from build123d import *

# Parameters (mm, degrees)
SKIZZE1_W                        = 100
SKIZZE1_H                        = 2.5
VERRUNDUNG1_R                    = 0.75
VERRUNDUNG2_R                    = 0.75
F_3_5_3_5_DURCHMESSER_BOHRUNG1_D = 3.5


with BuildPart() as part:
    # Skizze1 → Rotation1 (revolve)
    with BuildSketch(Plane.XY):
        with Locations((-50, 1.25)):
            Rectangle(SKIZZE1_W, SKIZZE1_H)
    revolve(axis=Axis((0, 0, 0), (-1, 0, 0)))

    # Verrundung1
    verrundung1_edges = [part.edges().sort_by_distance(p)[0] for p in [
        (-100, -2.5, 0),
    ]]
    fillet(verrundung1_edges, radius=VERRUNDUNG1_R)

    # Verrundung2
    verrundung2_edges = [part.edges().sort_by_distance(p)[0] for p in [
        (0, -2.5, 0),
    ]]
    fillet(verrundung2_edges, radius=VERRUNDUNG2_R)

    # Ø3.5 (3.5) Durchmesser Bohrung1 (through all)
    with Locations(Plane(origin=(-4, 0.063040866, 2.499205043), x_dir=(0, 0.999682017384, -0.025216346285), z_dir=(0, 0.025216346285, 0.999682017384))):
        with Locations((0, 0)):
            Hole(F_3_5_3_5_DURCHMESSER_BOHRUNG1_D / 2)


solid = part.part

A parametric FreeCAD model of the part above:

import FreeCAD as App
import Part
import Sketcher


def edges_at(feature, points):
    """Names of the edges that pass closest to the given points."""
    edges = feature.Shape.Edges
    near = lambda p: min(range(len(edges)), key=lambda i: edges[i].distToShape(Part.Vertex(*p))[0])
    return sorted({f"Edge{near(p) + 1}" for p in points})

doc = App.newDocument("Part")
body = doc.addObject("PartDesign::Body", "Body")

# Sketch on XY plane
sketch1 = body.newObject("Sketcher::SketchObject", "Sketch")
sketch1.AttachmentSupport = (doc.getObject("XY_Plane"), [""])
sketch1.MapMode = "FlatFace"
sketch1.addGeometry([
    Part.LineSegment(App.Vector(-100, 2.5, 0), App.Vector(-100, 0, 0)),
    Part.LineSegment(App.Vector(-100, 0, 0), App.Vector(0, 0, 0)),
    Part.LineSegment(App.Vector(0, 0, 0), App.Vector(0, 2.5, 0)),
    Part.LineSegment(App.Vector(0, 2.5, 0), App.Vector(-100, 2.5, 0)),
], False)
sketch1.addConstraint([
    Sketcher.Constraint("Coincident", 0, 2, 1, 1),
    Sketcher.Constraint("Coincident", 1, 2, 2, 1),
    Sketcher.Constraint("Coincident", 2, 2, 3, 1),
    Sketcher.Constraint("Coincident", 3, 2, 0, 1),
    Sketcher.Constraint("Vertical", 0),
    Sketcher.Constraint("Horizontal", 1),
    Sketcher.Constraint("Vertical", 2),
    Sketcher.Constraint("Horizontal", 3),
    Sketcher.Constraint("Coincident", 1, 2, -1, 1),
    Sketcher.Constraint("DistanceX", 1, 1, 1, 2, 100.0),
    Sketcher.Constraint("DistanceY", 0, 2, 0, 1, 2.5),
])
revolution = body.newObject("PartDesign::Revolution", "Revolution")
revolution.Profile = sketch1
revolution.ReferenceAxis = (sketch1, ["H_Axis"])
revolution.Angle = 360
doc.recompute()

fillet = body.newObject("PartDesign::Fillet", "Fillet")
fillet.Base = (revolution, edges_at(revolution, [(-100, -2.5, 0)]))
fillet.Radius = 0.75
doc.recompute()

fillet2 = body.newObject("PartDesign::Fillet", "Fillet001")
fillet2.Base = (fillet, edges_at(fillet, [(0, -2.5, 0)]))
fillet2.Radius = 0.75

# Sketch on an angled plane
sketch2 = body.newObject("Sketcher::SketchObject", "Sketch001")
sketch2.Placement = App.Placement(App.Vector(0, 0.063041, 2.499205), App.Rotation(App.Vector(0, 0.999682017, -0.025216346), App.Vector(-0.999999999, 0, 0), App.Vector(0, 0.025216346, 0.999682017), "ZXY"))
sketch2.addGeometry(Part.Circle(App.Vector(0, 4, 0), App.Vector(0, 0, 1), 1.75), False)
sketch2.addConstraint([
    Sketcher.Constraint("PointOnObject", 0, 3, -2),
    Sketcher.Constraint("Diameter", 0, 3.5),
    Sketcher.Constraint("DistanceY", -1, 1, 0, 3, 4.0),
])
doc.recompute()
hole = body.newObject("PartDesign::Hole", "Hole")
hole.Profile = sketch2
hole.ThreadType = "None"
hole.Diameter = 3.5
hole.DepthType = "ThroughAll"

doc.recompute()
